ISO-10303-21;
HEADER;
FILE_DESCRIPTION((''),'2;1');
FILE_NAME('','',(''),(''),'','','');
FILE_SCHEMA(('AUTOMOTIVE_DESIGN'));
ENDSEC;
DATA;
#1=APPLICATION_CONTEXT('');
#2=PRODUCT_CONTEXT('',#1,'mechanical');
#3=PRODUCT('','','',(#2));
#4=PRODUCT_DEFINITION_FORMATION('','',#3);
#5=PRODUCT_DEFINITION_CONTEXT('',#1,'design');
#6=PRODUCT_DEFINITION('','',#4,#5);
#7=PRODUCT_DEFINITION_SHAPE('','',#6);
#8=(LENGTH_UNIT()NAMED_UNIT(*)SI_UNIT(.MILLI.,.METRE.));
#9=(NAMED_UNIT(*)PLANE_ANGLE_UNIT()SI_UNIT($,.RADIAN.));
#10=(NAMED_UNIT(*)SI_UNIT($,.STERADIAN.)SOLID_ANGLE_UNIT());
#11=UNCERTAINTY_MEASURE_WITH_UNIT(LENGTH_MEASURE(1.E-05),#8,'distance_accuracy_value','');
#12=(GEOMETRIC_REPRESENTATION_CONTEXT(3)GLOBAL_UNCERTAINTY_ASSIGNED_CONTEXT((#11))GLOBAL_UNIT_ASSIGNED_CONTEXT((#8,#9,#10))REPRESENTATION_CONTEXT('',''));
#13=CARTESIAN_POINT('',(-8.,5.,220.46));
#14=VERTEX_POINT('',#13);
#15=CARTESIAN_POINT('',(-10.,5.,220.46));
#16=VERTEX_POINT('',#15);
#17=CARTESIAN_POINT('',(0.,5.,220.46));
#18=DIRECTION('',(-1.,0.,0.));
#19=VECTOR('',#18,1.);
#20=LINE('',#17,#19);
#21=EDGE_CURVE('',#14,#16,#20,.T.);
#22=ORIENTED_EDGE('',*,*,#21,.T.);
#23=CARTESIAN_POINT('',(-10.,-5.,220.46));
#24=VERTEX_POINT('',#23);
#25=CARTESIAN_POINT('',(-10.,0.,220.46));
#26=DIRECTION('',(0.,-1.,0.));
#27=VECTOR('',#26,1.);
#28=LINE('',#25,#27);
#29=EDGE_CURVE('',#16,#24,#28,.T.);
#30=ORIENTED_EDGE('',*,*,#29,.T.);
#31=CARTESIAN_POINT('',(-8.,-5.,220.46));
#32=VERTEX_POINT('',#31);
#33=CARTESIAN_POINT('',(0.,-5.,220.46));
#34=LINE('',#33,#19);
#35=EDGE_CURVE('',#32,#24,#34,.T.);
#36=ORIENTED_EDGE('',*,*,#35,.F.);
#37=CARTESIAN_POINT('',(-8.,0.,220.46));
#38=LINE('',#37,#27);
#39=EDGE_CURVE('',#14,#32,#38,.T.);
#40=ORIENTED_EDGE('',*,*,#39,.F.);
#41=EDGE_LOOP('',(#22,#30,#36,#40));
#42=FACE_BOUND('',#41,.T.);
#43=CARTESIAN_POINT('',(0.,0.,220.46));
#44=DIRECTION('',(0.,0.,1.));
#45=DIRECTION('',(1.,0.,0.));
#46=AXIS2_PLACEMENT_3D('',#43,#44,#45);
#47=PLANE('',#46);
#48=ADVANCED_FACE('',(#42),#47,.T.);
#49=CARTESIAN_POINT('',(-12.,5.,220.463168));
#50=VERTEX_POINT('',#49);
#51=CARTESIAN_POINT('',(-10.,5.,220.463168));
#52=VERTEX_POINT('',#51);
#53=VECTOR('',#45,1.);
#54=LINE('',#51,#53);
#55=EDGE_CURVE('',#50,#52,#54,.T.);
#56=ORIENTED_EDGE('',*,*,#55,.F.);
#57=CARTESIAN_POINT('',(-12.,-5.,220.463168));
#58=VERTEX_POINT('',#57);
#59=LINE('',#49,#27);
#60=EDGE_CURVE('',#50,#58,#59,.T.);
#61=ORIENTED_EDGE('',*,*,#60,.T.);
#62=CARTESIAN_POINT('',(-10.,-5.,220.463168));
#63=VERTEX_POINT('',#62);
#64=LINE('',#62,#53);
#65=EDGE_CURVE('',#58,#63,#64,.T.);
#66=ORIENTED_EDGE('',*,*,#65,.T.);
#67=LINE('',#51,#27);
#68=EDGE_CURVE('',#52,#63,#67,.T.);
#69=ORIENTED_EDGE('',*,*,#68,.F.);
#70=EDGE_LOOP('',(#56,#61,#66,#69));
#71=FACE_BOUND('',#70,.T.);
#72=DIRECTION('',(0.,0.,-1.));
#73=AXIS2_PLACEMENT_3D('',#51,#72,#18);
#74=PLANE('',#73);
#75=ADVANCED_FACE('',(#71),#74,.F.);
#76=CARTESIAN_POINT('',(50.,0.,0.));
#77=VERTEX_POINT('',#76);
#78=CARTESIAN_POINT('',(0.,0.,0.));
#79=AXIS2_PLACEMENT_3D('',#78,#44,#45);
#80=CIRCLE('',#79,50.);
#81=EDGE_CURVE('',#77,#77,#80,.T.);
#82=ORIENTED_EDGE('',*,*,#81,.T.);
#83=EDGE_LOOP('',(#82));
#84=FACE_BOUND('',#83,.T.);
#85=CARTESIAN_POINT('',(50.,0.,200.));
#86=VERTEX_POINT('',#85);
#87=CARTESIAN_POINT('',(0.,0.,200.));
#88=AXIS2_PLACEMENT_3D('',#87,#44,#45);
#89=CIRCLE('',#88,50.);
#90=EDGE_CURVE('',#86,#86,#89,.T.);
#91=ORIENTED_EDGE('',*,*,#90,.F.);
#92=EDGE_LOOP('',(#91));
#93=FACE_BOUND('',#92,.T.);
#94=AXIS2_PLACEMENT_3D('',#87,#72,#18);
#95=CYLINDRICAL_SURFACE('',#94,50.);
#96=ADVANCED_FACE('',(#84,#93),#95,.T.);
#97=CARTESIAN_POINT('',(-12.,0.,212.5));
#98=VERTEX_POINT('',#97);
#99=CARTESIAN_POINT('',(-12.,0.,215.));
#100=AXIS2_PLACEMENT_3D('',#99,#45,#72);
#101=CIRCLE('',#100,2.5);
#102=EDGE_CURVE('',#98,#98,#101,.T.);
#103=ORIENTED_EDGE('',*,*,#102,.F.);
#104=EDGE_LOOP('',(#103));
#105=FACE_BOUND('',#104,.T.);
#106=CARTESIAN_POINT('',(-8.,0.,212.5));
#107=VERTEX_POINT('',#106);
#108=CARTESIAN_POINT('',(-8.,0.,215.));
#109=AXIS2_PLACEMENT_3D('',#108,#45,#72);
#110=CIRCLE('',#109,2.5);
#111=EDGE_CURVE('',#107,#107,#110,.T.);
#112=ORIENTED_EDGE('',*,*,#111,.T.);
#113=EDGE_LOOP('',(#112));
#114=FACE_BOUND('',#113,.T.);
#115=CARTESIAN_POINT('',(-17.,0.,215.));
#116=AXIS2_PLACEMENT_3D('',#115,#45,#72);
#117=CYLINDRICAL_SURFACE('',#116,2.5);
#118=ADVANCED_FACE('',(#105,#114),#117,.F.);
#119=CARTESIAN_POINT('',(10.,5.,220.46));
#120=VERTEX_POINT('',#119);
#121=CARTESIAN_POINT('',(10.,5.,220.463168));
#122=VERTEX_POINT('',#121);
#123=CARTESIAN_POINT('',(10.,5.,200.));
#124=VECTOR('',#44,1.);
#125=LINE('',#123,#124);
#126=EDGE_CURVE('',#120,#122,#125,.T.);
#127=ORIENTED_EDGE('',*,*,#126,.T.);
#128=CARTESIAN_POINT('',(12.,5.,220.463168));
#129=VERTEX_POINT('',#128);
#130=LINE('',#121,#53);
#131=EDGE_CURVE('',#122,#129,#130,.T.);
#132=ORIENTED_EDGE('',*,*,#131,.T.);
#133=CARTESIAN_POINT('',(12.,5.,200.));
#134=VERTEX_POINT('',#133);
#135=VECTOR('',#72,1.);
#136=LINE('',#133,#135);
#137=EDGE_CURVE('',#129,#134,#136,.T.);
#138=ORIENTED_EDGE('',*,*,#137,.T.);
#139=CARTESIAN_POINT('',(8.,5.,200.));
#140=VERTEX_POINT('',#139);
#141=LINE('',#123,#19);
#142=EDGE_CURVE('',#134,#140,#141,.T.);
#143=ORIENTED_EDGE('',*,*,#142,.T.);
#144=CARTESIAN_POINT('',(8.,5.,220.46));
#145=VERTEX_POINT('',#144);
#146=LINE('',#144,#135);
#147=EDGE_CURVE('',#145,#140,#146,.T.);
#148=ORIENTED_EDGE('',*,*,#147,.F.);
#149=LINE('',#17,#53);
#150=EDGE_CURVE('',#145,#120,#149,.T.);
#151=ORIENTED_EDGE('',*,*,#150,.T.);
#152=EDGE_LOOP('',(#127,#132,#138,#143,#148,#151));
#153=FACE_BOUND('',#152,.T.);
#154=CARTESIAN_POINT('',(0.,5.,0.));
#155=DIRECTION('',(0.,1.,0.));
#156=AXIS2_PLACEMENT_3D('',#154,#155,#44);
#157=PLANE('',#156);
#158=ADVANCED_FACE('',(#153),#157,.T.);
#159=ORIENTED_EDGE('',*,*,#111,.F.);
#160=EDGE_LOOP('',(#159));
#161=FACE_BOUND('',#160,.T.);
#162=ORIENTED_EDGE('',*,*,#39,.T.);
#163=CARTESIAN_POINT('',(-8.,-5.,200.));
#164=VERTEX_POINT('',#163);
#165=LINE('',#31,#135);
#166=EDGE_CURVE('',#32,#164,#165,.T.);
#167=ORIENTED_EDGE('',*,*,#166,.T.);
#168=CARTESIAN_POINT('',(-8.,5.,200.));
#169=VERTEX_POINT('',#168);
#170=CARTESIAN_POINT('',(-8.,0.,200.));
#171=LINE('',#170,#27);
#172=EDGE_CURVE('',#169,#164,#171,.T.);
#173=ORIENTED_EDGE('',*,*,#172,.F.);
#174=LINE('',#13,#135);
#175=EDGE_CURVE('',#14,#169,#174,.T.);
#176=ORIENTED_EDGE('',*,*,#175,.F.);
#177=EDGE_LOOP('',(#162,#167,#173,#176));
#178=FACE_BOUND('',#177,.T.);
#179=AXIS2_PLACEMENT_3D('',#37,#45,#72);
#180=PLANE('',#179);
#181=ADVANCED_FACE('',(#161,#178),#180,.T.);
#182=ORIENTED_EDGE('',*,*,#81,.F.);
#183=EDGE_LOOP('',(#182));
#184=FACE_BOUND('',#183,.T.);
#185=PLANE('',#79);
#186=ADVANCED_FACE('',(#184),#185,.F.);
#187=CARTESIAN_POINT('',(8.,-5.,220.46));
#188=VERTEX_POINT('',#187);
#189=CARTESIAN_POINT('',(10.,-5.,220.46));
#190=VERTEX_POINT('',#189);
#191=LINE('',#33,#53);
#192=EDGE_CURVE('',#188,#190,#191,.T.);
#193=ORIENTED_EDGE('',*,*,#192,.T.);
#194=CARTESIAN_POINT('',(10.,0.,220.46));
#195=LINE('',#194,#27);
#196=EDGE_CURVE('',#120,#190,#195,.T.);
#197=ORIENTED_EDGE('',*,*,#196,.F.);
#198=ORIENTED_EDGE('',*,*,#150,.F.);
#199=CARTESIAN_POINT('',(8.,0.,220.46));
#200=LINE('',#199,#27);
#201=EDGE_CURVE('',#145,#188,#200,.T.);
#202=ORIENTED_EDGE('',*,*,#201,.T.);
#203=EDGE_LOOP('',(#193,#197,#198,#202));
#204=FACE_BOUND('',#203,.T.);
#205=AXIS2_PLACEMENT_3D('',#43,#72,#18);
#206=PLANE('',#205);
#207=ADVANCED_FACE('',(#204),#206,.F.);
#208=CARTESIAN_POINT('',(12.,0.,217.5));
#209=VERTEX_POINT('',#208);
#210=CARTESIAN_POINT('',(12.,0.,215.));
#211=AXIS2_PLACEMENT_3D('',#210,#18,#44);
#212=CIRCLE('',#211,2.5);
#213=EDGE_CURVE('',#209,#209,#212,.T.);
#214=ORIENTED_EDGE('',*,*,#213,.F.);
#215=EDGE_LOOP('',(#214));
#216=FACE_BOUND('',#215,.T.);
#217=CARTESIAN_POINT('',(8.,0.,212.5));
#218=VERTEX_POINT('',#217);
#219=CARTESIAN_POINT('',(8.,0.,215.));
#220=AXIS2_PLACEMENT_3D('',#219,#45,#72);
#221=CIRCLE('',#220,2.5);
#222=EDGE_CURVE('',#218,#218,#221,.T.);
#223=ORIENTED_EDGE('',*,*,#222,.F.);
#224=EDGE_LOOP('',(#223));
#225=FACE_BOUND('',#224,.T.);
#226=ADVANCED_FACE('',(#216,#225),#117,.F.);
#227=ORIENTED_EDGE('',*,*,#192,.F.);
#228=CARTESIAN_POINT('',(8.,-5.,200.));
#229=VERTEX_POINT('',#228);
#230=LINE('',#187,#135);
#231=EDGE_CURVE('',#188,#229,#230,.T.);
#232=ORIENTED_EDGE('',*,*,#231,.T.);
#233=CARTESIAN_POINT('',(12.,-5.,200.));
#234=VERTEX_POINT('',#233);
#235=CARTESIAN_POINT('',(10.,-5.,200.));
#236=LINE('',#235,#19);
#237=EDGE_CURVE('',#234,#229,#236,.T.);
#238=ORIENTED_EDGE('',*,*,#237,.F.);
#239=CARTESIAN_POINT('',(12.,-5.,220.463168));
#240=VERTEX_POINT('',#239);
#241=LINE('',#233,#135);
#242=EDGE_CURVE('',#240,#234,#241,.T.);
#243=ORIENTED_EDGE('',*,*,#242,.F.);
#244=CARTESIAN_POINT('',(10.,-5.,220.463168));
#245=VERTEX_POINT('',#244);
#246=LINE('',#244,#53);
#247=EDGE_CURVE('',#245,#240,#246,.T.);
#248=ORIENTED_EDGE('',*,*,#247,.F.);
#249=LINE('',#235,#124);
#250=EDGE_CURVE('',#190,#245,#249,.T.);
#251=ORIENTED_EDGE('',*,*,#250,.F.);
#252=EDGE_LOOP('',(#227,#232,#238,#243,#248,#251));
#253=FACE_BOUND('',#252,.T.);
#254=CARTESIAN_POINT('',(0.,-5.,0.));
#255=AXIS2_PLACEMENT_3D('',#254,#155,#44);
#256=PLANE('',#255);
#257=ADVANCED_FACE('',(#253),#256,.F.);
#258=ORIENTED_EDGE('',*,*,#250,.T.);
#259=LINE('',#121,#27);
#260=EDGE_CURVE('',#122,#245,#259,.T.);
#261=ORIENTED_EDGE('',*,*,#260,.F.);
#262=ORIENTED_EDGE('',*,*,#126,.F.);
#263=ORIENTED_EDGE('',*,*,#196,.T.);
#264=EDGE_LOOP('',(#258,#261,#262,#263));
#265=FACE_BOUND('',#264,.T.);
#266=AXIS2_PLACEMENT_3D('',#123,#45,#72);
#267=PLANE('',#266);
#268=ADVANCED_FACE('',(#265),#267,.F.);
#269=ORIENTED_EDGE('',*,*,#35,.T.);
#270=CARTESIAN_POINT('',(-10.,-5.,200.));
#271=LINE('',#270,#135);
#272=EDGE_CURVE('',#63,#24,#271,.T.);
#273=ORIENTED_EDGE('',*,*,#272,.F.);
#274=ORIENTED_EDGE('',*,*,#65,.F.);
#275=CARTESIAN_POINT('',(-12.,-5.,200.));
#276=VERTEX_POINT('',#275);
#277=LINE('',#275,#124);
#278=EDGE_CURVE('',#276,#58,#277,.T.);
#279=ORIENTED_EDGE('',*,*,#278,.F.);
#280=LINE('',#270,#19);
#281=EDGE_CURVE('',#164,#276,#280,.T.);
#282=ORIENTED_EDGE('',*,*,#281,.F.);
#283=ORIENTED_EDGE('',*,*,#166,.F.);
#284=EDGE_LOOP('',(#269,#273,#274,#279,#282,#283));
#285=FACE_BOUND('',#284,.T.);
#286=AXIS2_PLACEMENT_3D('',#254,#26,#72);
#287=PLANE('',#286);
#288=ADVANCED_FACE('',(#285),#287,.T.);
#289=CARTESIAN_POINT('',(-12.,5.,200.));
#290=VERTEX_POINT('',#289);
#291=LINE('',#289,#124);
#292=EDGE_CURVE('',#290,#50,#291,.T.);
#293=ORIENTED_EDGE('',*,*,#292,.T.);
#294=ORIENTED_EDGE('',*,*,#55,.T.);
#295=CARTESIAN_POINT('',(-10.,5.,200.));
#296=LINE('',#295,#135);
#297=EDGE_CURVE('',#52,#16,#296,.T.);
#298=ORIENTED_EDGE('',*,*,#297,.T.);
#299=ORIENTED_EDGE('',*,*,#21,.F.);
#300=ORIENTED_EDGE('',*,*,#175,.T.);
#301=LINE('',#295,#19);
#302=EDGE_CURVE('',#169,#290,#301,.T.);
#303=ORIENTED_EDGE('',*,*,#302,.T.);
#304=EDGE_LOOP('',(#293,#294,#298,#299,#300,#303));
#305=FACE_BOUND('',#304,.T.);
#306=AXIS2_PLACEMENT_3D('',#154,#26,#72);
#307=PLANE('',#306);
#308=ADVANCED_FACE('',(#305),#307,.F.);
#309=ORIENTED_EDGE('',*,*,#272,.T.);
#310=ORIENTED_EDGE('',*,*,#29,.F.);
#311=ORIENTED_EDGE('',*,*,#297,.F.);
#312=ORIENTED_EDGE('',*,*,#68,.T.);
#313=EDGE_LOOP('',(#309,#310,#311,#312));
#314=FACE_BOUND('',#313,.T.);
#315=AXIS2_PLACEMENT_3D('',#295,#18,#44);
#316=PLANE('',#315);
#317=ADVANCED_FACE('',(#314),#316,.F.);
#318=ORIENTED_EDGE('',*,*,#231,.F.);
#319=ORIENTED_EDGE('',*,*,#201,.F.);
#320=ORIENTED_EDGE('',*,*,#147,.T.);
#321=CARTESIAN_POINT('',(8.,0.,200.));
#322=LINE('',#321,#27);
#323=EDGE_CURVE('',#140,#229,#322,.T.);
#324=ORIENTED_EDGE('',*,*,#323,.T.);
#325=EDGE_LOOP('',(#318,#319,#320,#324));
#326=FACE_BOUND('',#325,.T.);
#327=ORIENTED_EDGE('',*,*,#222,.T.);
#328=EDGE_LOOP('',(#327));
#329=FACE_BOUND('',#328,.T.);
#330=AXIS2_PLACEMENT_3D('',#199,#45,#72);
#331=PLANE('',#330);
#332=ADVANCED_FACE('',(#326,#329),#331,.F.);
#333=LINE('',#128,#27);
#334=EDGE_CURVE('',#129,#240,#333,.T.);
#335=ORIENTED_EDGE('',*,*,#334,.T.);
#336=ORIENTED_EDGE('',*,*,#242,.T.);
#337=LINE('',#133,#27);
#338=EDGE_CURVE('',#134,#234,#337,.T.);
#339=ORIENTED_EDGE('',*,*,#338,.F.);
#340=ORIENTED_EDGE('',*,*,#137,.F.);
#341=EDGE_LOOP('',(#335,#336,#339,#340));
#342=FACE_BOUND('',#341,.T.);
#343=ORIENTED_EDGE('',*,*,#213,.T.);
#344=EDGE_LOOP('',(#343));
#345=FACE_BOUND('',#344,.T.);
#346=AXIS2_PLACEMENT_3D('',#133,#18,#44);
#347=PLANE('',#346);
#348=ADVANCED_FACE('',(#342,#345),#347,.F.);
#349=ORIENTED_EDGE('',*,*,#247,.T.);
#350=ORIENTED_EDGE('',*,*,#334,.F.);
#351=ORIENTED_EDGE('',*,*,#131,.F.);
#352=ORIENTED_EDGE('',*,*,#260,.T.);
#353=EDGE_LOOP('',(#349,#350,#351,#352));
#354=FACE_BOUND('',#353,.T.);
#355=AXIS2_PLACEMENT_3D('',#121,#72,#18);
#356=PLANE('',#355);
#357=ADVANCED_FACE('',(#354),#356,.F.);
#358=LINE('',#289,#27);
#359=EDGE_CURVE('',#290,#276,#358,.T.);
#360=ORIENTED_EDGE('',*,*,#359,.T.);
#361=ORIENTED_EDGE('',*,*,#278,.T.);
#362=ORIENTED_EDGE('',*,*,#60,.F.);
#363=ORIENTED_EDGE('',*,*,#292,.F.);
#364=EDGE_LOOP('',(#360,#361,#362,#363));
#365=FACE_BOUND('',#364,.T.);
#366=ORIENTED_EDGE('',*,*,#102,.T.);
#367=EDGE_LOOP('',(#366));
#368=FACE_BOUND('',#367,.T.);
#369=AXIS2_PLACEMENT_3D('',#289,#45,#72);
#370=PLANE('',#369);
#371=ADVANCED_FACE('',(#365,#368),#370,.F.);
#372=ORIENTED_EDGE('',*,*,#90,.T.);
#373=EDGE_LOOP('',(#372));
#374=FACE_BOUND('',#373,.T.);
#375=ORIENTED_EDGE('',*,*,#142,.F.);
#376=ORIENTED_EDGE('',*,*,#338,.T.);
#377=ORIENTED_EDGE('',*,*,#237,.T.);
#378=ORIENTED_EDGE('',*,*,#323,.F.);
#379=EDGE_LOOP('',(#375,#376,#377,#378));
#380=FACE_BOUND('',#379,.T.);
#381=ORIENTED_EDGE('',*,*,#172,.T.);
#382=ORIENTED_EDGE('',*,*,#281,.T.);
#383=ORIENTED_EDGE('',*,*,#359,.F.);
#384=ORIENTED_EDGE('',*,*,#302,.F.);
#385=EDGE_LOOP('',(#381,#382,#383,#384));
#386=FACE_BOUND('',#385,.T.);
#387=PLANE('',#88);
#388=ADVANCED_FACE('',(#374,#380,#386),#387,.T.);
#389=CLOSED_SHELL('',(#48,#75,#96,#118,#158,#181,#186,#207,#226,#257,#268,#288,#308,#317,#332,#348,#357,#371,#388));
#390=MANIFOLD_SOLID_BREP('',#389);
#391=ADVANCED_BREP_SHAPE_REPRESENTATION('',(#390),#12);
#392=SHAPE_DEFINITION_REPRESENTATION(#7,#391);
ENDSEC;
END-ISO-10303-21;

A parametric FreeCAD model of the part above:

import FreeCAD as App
import Part
import Sketcher

V = App.Vector


def add_polygon(sketch, points):
    """Adds a closed chain of lines whose ends are joined by coincident constraints."""
    first, n = sketch.GeometryCount, len(points)
    for a, b in zip(points, points[1:] + points[:1]):
        sketch.addGeometry(Part.LineSegment(App.Vector(*a, 0), App.Vector(*b, 0)), False)
    for i in range(n):
        sketch.addConstraint(Sketcher.Constraint("Coincident", first + i, 2, first + (i + 1) % n, 1))

doc = App.newDocument("Part")
body = doc.addObject("PartDesign::Body", "Body")

sketch1 = body.newObject("Sketcher::SketchObject", "Sketch")
sketch1.AttachmentSupport = (doc.getObject("XY_Plane"), [""])
sketch1.MapMode = "FlatFace"
sketch1.addGeometry(Part.Circle(V(0, 0, 0), V(0, 0, 1), 50), False)
sketch1.addConstraint(Sketcher.Constraint("Coincident", 0, 3, -1, 1))
sketch1.addConstraint(Sketcher.Constraint("Diameter", 0, 100.0))
pad1 = body.newObject("PartDesign::Pad", "Pad")
pad1.Profile = sketch1
pad1.Length = 200

sketch2 = body.newObject("Sketcher::SketchObject", "Sketch001")
sketch2.AttachmentSupport = (doc.getObject("XZ_Plane"), [""])
sketch2.MapMode = "FlatFace"
add_polygon(sketch2, [(-12, 200), (-12, 220.5), (-10, 220.5), (-10, 200)])
add_polygon(sketch2, [(10, 200), (10, 220.5), (12, 220.5), (12, 200)])
sketch2.addConstraint(Sketcher.Constraint("Vertical", 0))
sketch2.addConstraint(Sketcher.Constraint("Horizontal", 1))
sketch2.addConstraint(Sketcher.Constraint("Vertical", 2))
sketch2.addConstraint(Sketcher.Constraint("Horizontal", 3))
sketch2.addConstraint(Sketcher.Constraint("Vertical", 4))
sketch2.addConstraint(Sketcher.Constraint("Horizontal", 5))
sketch2.addConstraint(Sketcher.Constraint("Vertical", 6))
sketch2.addConstraint(Sketcher.Constraint("Horizontal", 7))
sketch2.addConstraint(Sketcher.Constraint("Symmetric", 1, 2, 4, 2, -2))
sketch2.addConstraint(Sketcher.Constraint("Symmetric", 3, 2, 6, 2, -2))
sketch2.addConstraint(Sketcher.Constraint("DistanceX", 1, 1, 1, 2, 2.0))
sketch2.addConstraint(Sketcher.Constraint("DistanceX", 0, 2, -1, 1, 12.0))
sketch2.addConstraint(Sketcher.Constraint("DistanceY", -1, 1, 2, 2, 200.0))
sketch2.addConstraint(Sketcher.Constraint("DistanceY", 0, 1, 0, 2, 20.463168))
pad2 = body.newObject("PartDesign::Pad", "Pad001")
pad2.Profile = sketch2
pad2.Length = 10
pad2.Midplane = True

sketch3 = body.newObject("Sketcher::SketchObject", "Sketch002")
sketch3.AttachmentSupport = (doc.getObject("YZ_Plane"), [""])
sketch3.MapMode = "FlatFace"
sketch3.addGeometry(Part.Circle(V(0, 215, 0), V(0, 0, 1), 2.5), False)
sketch3.addConstraint(Sketcher.Constraint("PointOnObject", 0, 3, -2))
sketch3.addConstraint(Sketcher.Constraint("Diameter", 0, 5.0))
sketch3.addConstraint(Sketcher.Constraint("DistanceY", -1, 1, 0, 3, 215.0))
pocket1 = body.newObject("PartDesign::Pocket", "Pocket")
pocket1.Profile = sketch3
pocket1.Length = 34
pocket1.Midplane = True

sketch4 = body.newObject("Sketcher::SketchObject", "Sketch003")
sketch4.AttachmentSupport = (doc.getObject("XY_Plane"), [""])
sketch4.MapMode = "FlatFace"
sketch4.AttachmentOffset = App.Placement(V(0, 0, 200), App.Rotation())
add_polygon(sketch4, [(-10, 5), (-10, -5), (-8, -5), (-8, 5)])
add_polygon(sketch4, [(8, 5), (8, -5), (10, -5), (10, 5)])
sketch4.addConstraint(Sketcher.Constraint("Vertical", 0))
sketch4.addConstraint(Sketcher.Constraint("Horizontal", 1))
sketch4.addConstraint(Sketcher.Constraint("Vertical", 2))
sketch4.addConstraint(Sketcher.Constraint("Horizontal", 3))
sketch4.addConstraint(Sketcher.Constraint("Vertical", 4))
sketch4.addConstraint(Sketcher.Constraint("Horizontal", 5))
sketch4.addConstraint(Sketcher.Constraint("Vertical", 6))
sketch4.addConstraint(Sketcher.Constraint("Horizontal", 7))
sketch4.addConstraint(Sketcher.Constraint("Symmetric", 2, 2, 4, 2, -1, 1))
sketch4.addConstraint(Sketcher.Constraint("Symmetric", 0, 2, 6, 2, -1, 1))
sketch4.addConstraint(Sketcher.Constraint("Horizontal", 1, 2, 4, 2))
sketch4.addConstraint(Sketcher.Constraint("DistanceX", 1, 1, 1, 2, 2.0))
sketch4.addConstraint(Sketcher.Constraint("DistanceY", 0, 2, 0, 1, 10.0))
sketch4.addConstraint(Sketcher.Constraint("DistanceX", 0, 2, -1, 1, 10.0))
pad3 = body.newObject("PartDesign::Pad", "Pad002")
pad3.Profile = sketch4
pad3.Length = 20.46

sketch5 = body.newObject("Sketcher::SketchObject", "Sketch004")
sketch5.AttachmentSupport = (doc.getObject("YZ_Plane"), [""])
sketch5.MapMode = "FlatFace"
sketch5.addGeometry(Part.Circle(V(0, 215, 0), V(0, 0, 1), 2.5), False)
sketch5.addConstraint(Sketcher.Constraint("PointOnObject", 0, 3, -2))
sketch5.addConstraint(Sketcher.Constraint("Diameter", 0, 5.0))
sketch5.addConstraint(Sketcher.Constraint("DistanceY", -1, 1, 0, 3, 215.0))
pocket2 = body.newObject("PartDesign::Pocket", "Pocket001")
pocket2.Profile = sketch5
pocket2.Length = 25
pocket2.Midplane = True

doc.recompute()
